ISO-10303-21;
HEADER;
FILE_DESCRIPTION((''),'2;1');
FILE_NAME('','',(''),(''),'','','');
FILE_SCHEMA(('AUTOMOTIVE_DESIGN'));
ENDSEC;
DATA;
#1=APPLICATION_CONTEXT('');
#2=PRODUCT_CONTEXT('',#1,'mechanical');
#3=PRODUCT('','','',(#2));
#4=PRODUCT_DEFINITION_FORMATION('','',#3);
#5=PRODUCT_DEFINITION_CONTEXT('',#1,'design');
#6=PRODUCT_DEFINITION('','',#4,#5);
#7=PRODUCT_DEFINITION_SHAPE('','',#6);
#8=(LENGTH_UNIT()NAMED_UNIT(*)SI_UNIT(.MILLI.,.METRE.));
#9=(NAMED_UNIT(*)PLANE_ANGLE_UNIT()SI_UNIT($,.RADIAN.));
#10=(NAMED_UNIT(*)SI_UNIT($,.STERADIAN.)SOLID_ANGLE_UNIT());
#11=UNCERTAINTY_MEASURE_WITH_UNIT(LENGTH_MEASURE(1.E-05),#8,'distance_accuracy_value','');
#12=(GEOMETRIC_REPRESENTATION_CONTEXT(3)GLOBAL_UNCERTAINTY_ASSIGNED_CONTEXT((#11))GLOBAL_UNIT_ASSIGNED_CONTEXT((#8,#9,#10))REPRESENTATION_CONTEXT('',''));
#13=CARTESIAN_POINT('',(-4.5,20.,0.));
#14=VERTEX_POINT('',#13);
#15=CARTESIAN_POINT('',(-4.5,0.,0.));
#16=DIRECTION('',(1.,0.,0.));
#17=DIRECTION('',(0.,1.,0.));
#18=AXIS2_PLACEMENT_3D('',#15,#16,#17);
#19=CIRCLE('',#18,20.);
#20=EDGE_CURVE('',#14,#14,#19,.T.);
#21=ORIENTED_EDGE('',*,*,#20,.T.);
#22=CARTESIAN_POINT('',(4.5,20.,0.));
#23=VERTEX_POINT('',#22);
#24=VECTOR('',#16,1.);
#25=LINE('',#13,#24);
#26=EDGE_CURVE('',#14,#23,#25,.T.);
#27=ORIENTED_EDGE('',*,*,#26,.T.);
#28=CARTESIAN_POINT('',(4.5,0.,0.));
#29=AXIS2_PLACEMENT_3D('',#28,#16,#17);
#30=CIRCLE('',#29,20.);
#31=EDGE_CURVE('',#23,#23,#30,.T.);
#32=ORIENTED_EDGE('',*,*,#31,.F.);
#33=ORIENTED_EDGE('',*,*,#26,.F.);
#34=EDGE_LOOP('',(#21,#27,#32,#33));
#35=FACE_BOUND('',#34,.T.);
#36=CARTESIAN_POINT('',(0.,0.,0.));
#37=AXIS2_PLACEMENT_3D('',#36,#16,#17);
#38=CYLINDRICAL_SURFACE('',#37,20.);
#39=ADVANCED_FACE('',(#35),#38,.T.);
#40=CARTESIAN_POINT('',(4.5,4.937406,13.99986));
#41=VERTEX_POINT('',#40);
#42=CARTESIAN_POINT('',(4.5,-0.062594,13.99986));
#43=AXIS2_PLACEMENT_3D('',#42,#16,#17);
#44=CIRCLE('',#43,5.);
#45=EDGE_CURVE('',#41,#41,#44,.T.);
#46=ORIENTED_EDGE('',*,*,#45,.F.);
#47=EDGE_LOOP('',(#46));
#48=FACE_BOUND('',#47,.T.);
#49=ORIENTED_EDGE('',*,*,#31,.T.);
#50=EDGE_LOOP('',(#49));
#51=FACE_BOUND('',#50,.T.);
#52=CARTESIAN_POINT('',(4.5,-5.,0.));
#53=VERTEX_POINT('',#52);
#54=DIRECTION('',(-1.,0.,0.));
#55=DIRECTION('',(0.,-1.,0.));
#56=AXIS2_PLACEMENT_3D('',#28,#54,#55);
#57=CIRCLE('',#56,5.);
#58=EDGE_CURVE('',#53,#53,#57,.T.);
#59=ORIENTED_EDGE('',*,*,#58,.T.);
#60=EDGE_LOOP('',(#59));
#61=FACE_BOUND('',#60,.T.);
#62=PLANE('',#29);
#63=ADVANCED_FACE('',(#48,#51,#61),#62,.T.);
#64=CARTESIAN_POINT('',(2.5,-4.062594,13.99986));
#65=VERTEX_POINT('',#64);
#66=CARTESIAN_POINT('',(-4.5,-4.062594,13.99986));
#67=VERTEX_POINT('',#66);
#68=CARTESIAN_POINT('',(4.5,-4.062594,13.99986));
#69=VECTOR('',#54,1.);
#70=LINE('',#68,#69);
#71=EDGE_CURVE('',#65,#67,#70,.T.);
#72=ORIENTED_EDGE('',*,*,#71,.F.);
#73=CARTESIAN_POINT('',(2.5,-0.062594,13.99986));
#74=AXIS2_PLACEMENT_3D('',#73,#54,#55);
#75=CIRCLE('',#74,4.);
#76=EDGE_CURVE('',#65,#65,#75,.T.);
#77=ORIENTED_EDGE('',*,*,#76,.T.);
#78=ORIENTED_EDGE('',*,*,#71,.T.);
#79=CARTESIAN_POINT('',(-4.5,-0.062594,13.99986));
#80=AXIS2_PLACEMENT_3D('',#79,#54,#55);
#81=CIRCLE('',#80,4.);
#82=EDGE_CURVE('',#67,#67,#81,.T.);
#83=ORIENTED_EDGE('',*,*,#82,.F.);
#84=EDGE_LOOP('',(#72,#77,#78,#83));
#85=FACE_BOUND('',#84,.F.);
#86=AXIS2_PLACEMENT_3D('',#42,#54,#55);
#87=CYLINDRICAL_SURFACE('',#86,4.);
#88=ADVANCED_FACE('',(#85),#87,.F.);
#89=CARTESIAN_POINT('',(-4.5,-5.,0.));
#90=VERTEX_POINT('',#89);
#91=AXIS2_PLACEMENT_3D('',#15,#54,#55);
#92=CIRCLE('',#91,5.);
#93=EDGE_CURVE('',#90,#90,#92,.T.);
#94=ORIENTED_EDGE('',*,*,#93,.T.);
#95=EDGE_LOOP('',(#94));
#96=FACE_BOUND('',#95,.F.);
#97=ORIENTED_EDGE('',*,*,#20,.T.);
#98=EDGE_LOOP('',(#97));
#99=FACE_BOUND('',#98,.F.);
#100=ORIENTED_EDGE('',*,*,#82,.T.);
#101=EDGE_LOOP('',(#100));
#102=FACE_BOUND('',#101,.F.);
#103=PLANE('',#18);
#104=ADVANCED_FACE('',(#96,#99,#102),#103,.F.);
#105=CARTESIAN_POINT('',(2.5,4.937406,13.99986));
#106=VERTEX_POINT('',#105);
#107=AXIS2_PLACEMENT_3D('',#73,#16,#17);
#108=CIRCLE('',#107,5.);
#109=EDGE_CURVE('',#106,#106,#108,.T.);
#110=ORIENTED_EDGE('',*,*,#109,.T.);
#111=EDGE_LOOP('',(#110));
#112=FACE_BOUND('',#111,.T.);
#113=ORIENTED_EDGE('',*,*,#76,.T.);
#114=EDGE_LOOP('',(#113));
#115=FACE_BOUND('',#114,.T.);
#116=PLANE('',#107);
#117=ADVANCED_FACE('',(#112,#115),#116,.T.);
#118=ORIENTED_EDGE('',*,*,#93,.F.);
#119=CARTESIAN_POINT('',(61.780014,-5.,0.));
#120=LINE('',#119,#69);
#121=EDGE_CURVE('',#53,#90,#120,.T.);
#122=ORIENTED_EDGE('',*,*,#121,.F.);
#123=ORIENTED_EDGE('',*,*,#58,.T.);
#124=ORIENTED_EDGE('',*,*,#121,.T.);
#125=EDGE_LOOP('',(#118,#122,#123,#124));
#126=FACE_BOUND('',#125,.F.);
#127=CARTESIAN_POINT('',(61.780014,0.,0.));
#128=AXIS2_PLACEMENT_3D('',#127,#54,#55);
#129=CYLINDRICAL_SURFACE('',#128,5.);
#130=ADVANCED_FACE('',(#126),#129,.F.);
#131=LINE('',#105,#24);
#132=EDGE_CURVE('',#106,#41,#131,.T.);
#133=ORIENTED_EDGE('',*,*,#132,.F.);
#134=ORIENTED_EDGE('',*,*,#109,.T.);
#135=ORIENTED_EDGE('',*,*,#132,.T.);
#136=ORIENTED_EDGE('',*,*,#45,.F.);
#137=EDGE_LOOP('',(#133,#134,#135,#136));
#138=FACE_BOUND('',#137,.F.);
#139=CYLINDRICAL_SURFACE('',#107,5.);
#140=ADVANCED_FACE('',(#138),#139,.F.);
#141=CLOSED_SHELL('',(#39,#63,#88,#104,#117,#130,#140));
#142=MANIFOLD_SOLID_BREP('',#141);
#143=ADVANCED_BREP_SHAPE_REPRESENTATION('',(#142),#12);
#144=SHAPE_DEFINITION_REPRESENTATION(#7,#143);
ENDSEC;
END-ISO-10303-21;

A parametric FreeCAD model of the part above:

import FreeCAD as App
import Part
import Sketcher

doc = App.newDocument("Part")
body = doc.addObject("PartDesign::Body", "Body")

sketch1 = doc.addObject("Sketcher::SketchObject", "Sketch")
body.addObject(sketch1)
sketch1.AttachmentSupport = (doc.YZ_Plane, [""])
sketch1.MapMode = "FlatFace"
sketch1.addGeometry(Part.Circle(App.Vector(0, 0, 0), App.Vector(0, 0, 1), 20), False)
sketch1.addConstraint(Sketcher.Constraint("Coincident", 0, 3, -1, 1))
sketch1.addConstraint(Sketcher.Constraint("Diameter", 0, 40.0))
pad1 = doc.addObject("PartDesign::Pad", "Pad")
body.addObject(pad1)
pad1.Profile = sketch1
pad1.Length = 9
pad1.Midplane = True

sketch2 = doc.addObject("Sketcher::SketchObject", "Sketch001")
body.addObject(sketch2)
sketch2.AttachmentSupport = (doc.YZ_Plane, [""])
sketch2.MapMode = "FlatFace"
sketch2.AttachmentOffset = App.Placement(App.Vector(0, 0, 4.5), App.Rotation())
sketch2.addGeometry(Part.Circle(App.Vector(0, 0, 0), App.Vector(0, 0, 1), 5), False)
sketch2.addConstraint(Sketcher.Constraint("Coincident", 0, 3, -1, 1))
sketch2.addConstraint(Sketcher.Constraint("Diameter", 0, 10.0))
doc.recompute()
hole = doc.addObject("PartDesign::Hole", "Hole")
body.addObject(hole)
hole.Profile = sketch2
hole.ThreadType = "None"
hole.Diameter = 10
hole.DepthType = "ThroughAll"

sketch3 = doc.addObject("Sketcher::SketchObject", "Sketch002")
body.addObject(sketch3)
sketch3.AttachmentSupport = (doc.YZ_Plane, [""])
sketch3.MapMode = "FlatFace"
sketch3.AttachmentOffset = App.Placement(App.Vector(0, 0, 4.5), App.Rotation())
sketch3.addGeometry(Part.Circle(App.Vector(-0.1, 14, 0), App.Vector(0, 0, 1), 4), False)
sketch3.addConstraint(Sketcher.Constraint("Diameter", 0, 8.0))
sketch3.addConstraint(Sketcher.Constraint("DistanceY", -1, 1, 0, 3, 13.99986))
sketch3.addConstraint(Sketcher.Constraint("DistanceX", 0, 3, -1, 1, 0.062594))
doc.recompute()
hole2 = doc.addObject("PartDesign::Hole", "Hole001")
body.addObject(hole2)
hole2.Profile = sketch3
hole2.ThreadType = "None"
hole2.Diameter = 8
hole2.DepthType = "ThroughAll"
hole2.HoleCutType = "Counterbore"
hole2.HoleCutDiameter = 10
hole2.HoleCutDepth = 2

doc.recompute()
